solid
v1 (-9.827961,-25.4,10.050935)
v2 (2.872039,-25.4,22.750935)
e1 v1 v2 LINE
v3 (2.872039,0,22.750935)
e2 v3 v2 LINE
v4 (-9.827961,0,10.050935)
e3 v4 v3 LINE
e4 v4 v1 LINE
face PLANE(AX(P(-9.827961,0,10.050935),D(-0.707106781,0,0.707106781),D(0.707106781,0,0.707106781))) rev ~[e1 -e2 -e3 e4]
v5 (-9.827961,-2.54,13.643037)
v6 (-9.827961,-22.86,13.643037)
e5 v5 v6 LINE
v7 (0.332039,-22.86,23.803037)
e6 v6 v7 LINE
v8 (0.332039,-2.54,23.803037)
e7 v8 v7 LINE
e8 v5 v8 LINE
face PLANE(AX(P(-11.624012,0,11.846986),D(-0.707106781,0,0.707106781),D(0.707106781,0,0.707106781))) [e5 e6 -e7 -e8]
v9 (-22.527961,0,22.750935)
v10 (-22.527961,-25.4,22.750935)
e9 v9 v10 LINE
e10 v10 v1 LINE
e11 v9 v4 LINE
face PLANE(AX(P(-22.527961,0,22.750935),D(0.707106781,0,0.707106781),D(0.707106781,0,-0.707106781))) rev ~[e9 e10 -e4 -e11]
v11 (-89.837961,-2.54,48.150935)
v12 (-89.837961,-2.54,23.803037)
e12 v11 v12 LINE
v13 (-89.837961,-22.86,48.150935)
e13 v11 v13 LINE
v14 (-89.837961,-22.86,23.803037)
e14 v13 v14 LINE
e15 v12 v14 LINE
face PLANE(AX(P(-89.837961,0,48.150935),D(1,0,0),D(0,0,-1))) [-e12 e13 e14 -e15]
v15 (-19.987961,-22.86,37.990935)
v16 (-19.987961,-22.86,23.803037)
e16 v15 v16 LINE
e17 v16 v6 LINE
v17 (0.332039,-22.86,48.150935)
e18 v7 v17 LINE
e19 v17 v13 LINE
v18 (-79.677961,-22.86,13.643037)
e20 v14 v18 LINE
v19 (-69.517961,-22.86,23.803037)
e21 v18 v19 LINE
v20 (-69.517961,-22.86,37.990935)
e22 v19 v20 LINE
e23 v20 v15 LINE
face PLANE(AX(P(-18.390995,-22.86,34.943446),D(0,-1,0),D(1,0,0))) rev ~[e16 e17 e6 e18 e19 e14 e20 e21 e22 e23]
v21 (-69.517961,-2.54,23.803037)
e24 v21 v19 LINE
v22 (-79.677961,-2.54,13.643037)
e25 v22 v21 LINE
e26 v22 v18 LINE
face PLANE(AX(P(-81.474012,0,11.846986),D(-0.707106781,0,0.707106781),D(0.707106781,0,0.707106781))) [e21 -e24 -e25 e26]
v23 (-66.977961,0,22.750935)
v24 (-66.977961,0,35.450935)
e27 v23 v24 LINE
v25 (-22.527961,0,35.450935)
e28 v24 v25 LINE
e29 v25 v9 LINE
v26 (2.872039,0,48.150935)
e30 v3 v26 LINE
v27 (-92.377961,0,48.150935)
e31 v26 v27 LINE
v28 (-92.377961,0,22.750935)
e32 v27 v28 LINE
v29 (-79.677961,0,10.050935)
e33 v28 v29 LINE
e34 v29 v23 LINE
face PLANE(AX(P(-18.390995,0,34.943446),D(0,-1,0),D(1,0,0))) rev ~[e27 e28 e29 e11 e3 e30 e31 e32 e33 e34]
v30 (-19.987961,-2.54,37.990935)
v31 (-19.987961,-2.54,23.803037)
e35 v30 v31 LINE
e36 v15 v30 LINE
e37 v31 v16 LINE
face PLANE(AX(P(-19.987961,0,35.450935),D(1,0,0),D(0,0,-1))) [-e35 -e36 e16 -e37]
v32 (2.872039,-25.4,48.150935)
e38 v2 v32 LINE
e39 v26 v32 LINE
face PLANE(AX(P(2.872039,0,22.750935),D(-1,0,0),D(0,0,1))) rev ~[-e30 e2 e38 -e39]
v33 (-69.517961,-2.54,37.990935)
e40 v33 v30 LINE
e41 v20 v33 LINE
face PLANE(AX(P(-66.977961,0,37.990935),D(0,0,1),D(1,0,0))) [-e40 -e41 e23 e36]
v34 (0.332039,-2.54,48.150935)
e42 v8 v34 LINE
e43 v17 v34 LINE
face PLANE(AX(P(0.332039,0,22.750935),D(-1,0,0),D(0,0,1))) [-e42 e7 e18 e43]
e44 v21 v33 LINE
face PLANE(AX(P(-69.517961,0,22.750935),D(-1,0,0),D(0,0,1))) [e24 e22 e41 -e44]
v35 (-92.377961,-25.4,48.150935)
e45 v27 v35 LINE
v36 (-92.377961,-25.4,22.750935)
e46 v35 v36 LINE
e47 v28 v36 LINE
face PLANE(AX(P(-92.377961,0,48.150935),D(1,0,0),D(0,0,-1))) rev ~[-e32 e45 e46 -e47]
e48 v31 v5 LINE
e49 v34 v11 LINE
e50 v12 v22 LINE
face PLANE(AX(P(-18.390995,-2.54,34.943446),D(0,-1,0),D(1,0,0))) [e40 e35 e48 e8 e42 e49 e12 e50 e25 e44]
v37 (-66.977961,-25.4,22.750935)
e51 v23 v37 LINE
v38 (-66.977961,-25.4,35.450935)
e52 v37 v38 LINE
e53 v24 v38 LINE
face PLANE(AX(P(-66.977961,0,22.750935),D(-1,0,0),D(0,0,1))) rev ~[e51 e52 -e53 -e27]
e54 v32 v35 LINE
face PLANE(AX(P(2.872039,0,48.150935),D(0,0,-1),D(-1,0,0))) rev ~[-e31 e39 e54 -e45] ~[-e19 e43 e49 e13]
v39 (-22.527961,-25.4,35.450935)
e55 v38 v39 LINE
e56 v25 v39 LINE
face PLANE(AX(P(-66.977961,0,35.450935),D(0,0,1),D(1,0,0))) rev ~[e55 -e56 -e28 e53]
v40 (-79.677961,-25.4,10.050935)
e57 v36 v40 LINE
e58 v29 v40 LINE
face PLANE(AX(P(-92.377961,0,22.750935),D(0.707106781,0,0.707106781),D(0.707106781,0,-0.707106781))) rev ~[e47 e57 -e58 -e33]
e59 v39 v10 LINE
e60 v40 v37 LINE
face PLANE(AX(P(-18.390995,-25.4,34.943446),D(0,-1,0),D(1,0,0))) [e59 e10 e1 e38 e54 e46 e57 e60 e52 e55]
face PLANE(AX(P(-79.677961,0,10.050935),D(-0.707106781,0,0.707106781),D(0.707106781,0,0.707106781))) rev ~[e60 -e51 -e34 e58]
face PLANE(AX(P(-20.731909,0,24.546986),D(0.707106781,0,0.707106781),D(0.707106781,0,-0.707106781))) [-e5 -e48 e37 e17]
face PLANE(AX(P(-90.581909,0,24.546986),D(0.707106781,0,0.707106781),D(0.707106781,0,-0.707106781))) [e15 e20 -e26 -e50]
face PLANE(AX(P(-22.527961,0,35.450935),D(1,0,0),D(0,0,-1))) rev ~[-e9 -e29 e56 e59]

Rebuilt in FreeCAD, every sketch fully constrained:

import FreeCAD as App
import Part
import Sketcher
Q = App.Units.Quantity


def faces_at(feature, points):
    """Names of the faces that lie closest to the given points."""
    faces = feature.Shape.Faces
    near = lambda p: min(range(len(faces)), key=lambda i: faces[i].distToShape(Part.Vertex(*p))[0])
    return sorted({f"Face{near(p) + 1}" for p in points})

doc = App.newDocument("Part")
body = doc.addObject("PartDesign::Body", "Body")

sketch1 = body.newObject("Sketcher::SketchObject", "Sketch")
sketch1.AttachmentSupport = (doc.getObject("XZ_Plane"), [""])
sketch1.MapMode = "FlatFace"
sketch1.addGeometry([
    Part.LineSegment(App.Vector(3, 48, 0), App.Vector(-92, 48, 0)),
    Part.LineSegment(App.Vector(-92, 48, 0), App.Vector(-92, 23, 0)),
    Part.LineSegment(App.Vector(-92, 23, 0), App.Vector(-80, 10, 0)),
    Part.LineSegment(App.Vector(-80, 10, 0), App.Vector(-67, 23, 0)),
    Part.LineSegment(App.Vector(-67, 23, 0), App.Vector(-67, 35, 0)),
    Part.LineSegment(App.Vector(-67, 35, 0), App.Vector(-23, 35, 0)),
    Part.LineSegment(App.Vector(-23, 35, 0), App.Vector(-23, 23, 0)),
    Part.LineSegment(App.Vector(-23, 23, 0), App.Vector(-10, 10, 0)),
    Part.LineSegment(App.Vector(-10, 10, 0), App.Vector(3, 23, 0)),
    Part.LineSegment(App.Vector(3, 23, 0), App.Vector(3, 48, 0)),
], False)
sketch1.addConstraint([
    Sketcher.Constraint("Coincident", 0, 2, 1, 1),
    Sketcher.Constraint("Coincident", 1, 2, 2, 1),
    Sketcher.Constraint("Coincident", 2, 2, 3, 1),
    Sketcher.Constraint("Coincident", 3, 2, 4, 1),
    Sketcher.Constraint("Coincident", 4, 2, 5, 1),
    Sketcher.Constraint("Coincident", 5, 2, 6, 1),
    Sketcher.Constraint("Coincident", 6, 2, 7, 1),
    Sketcher.Constraint("Coincident", 7, 2, 8, 1),
    Sketcher.Constraint("Coincident", 8, 2, 9, 1),
    Sketcher.Constraint("Coincident", 9, 2, 0, 1),
    Sketcher.Constraint("Horizontal", 0),
    Sketcher.Constraint("Vertical", 1),
    Sketcher.Constraint("Vertical", 4),
    Sketcher.Constraint("Horizontal", 5),
    Sketcher.Constraint("Vertical", 6),
    Sketcher.Constraint("Vertical", 9),
    Sketcher.Constraint("Perpendicular", 2, 3),
    Sketcher.Constraint("Perpendicular", 3, 7),
    Sketcher.Constraint("Perpendicular", 7, 8),
    Sketcher.Constraint("Horizontal", 1, 2, 3, 2),
    Sketcher.Constraint("Horizontal", 3, 2, 6, 2),
    Sketcher.Constraint("Horizontal", 2, 2, 7, 2),
    Sketcher.Constraint("Horizontal", 6, 2, 8, 2),
    Sketcher.Constraint("Equal", 2, 3),
    Sketcher.Constraint("DistanceY", 1, 2, 1, 1, Q("1 in")),
    Sketcher.Constraint("DistanceY", 4, 1, 4, 2, Q("0.5 in")),
    Sketcher.Constraint("DistanceX", 1, 2, 3, 2, Q("1 in")),
    Sketcher.Constraint("DistanceX", 0, 2, 0, 1, Q("3.75 in")),
    Sketcher.Constraint("DistanceX", 0, 2, -1, 1, 92.377961),
    Sketcher.Constraint("DistanceY", -1, 1, 0, 2, 48.150935),
])
pad1 = body.newObject("PartDesign::Pad", "Pad")
pad1.Profile = sketch1
pad1.Length = Q("1 in")
doc.recompute()

thickness = body.newObject("PartDesign::Thickness", "Thickness")
thickness.Base = (pad1, faces_at(pad1, [(-44.753, -12.7, 48.151)]))
thickness.Value = Q("0.1 in")
thickness.Reversed = True
thickness.Join = "Intersection"

doc.recompute()
